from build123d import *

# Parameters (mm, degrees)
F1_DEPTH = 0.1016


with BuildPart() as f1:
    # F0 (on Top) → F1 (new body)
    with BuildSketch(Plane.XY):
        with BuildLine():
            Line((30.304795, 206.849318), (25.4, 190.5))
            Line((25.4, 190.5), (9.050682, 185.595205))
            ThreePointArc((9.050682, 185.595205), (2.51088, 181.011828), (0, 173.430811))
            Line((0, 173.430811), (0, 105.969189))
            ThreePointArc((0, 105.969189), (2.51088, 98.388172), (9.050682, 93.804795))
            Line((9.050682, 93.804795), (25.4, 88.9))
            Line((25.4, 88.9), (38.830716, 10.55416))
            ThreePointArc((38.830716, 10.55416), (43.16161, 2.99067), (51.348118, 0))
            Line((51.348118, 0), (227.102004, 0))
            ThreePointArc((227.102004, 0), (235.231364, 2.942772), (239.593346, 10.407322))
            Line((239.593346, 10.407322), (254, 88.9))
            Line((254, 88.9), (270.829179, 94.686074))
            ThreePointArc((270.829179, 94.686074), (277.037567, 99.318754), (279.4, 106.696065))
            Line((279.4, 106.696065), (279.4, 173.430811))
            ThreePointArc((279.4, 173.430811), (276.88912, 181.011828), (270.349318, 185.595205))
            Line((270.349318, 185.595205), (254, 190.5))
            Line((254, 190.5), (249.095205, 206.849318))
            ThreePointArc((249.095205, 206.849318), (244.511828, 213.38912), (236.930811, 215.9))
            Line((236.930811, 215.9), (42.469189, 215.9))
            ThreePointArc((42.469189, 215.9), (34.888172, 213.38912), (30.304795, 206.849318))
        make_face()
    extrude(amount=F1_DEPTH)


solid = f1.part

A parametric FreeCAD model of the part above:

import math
import FreeCAD as App
import Part
import Sketcher
Q = App.Units.Quantity

doc = App.newDocument("Part")
body = doc.addObject("PartDesign::Body", "Body")

sketch1 = doc.addObject("Sketcher::SketchObject", "Sketch")
body.addObject(sketch1)
sketch1.AttachmentSupport = (doc.XY_Plane, [""])
sketch1.MapMode = "FlatFace"
sketch1.addGeometry([
    Part.LineSegment(App.Vector(30.304795, 206.849318, 0), App.Vector(25.4, 190.5, 0)),
    Part.LineSegment(App.Vector(25.4, 190.5, 0), App.Vector(9.050682, 185.595205, 0)),
    Part.ArcOfCircle(Part.Circle(App.Vector(12.700003, 173.430809, 0), App.Vector(0, 0, 1), 12.700003), math.radians(106.699253), math.radians(179.999992)),
    Part.LineSegment(App.Vector(0, 173.430811, 0), App.Vector(0, 105.969189, 0)),
    Part.ArcOfCircle(Part.Circle(App.Vector(12.700003, 105.969191, 0), App.Vector(0, 0, 1), 12.700003), math.radians(-179.999992), math.radians(-106.699253)),
    Part.LineSegment(App.Vector(9.050682, 93.804795, 0), App.Vector(25.4, 88.9, 0)),
    Part.LineSegment(App.Vector(25.4, 88.9, 0), App.Vector(38.830716, 10.55416, 0)),
    Part.ArcOfCircle(Part.Circle(App.Vector(51.348117, 12.699998, 0), App.Vector(0, 0, 1), 12.699998), math.radians(-170.27243), math.radians(-89.999996)),
    Part.LineSegment(App.Vector(51.348118, 0, 0), App.Vector(227.102004, 0, 0)),
    Part.ArcOfCircle(Part.Circle(App.Vector(227.102003, 12.700001, 0), App.Vector(0, 0, 1), 12.700001), math.radians(-89.999997), math.radians(-10.400392)),
    Part.LineSegment(App.Vector(239.593346, 10.407322, 0), App.Vector(254, 88.9, 0)),
    Part.LineSegment(App.Vector(254, 88.9, 0), App.Vector(270.829179, 94.686074, 0)),
    Part.ArcOfCircle(Part.Circle(App.Vector(266.700001, 106.696064, 0), App.Vector(0, 0, 1), 12.699999), math.radians(-71.026419), math.radians(0.000005)),
    Part.LineSegment(App.Vector(279.4, 106.696065, 0), App.Vector(279.4, 173.430811, 0)),
    Part.ArcOfCircle(Part.Circle(App.Vector(266.699997, 173.430809, 0), App.Vector(0, 0, 1), 12.700003), math.radians(0.000008), math.radians(73.300747)),
    Part.LineSegment(App.Vector(270.349318, 185.595205, 0), App.Vector(254, 190.5, 0)),
    Part.LineSegment(App.Vector(254, 190.5, 0), App.Vector(249.095205, 206.849318, 0)),
    Part.ArcOfCircle(Part.Circle(App.Vector(236.930809, 203.199997, 0), App.Vector(0, 0, 1), 12.700003), math.radians(16.699253), math.radians(89.999992)),
    Part.LineSegment(App.Vector(236.930811, 215.9, 0), App.Vector(42.469189, 215.9, 0)),
    Part.ArcOfCircle(Part.Circle(App.Vector(42.469191, 203.199997, 0), App.Vector(0, 0, 1), 12.700003), math.radians(90.000008), math.radians(163.300747)),
], False)
sketch1.addConstraint([
    Sketcher.Constraint("Coincident", 0, 2, 1, 1),
    Sketcher.Constraint("Coincident", 1, 2, 2, 1),
    Sketcher.Constraint("Coincident", 2, 2, 3, 1),
    Sketcher.Constraint("Coincident", 3, 2, 4, 1),
    Sketcher.Constraint("Coincident", 4, 2, 5, 1),
    Sketcher.Constraint("Coincident", 5, 2, 6, 1),
    Sketcher.Constraint("Coincident", 6, 2, 7, 1),
    Sketcher.Constraint("Coincident", 7, 2, 8, 1),
    Sketcher.Constraint("Coincident", 8, 2, 9, 1),
    Sketcher.Constraint("Coincident", 9, 2, 10, 1),
    Sketcher.Constraint("Coincident", 10, 2, 11, 1),
    Sketcher.Constraint("Coincident", 11, 2, 12, 1),
    Sketcher.Constraint("Coincident", 12, 2, 13, 1),
    Sketcher.Constraint("Coincident", 13, 2, 14, 1),
    Sketcher.Constraint("Coincident", 14, 2, 15, 1),
    Sketcher.Constraint("Coincident", 15, 2, 16, 1),
    Sketcher.Constraint("Coincident", 16, 2, 17, 1),
    Sketcher.Constraint("Coincident", 17, 2, 18, 1),
    Sketcher.Constraint("Coincident", 18, 2, 19, 1),
    Sketcher.Constraint("Coincident", 19, 2, 0, 1),
    Sketcher.Constraint("Vertical", 3),
    Sketcher.Constraint("Horizontal", 8),
    Sketcher.Constraint("Vertical", 13),
    Sketcher.Constraint("Horizontal", 18),
    Sketcher.Constraint("PointOnObject", 2, 2, -2),
    Sketcher.Constraint("PointOnObject", 7, 2, -1),
    Sketcher.Constraint("Radius", 2, Q("0.5000001 in")),
    Sketcher.Constraint("Radius", 4, Q("0.5000001 in")),
    Sketcher.Constraint("Radius", 7, Q("0.4999999 in")),
    Sketcher.Constraint("Radius", 9, Q("0.5 in")),
    Sketcher.Constraint("Radius", 12, Q("0.5 in")),
    Sketcher.Constraint("Radius", 14, Q("0.5000001 in")),
    Sketcher.Constraint("Radius", 17, Q("0.5000001 in")),
    Sketcher.Constraint("Radius", 19, Q("0.5000001 in")),
    Sketcher.Constraint("DistanceY", -1, 1, 17, 3, Q("7.9999999 in")),
    Sketcher.Constraint("DistanceX", -1, 1, 0, 2, Q("1 in")),
    Sketcher.Constraint("DistanceX", -1, 1, 5, 2, Q("1 in")),
    Sketcher.Constraint("DistanceX", -1, 1, 10, 2, Q("10 in")),
    Sketcher.Constraint("DistanceX", -1, 1, 12, 2, Q("11 in")),
    Sketcher.Constraint("DistanceX", -1, 1, 15, 2, Q("10 in")),
    Sketcher.Constraint("DistanceY", 7, 3, 0, 2, Q("7.0000001 in")),
    Sketcher.Constraint("DistanceY", 7, 3, 5, 2, Q("3.0000001 in")),
    Sketcher.Constraint("DistanceY", 9, 3, 10, 2, Q("3 in")),
    Sketcher.Constraint("DistanceY", 15, 2, 17, 2, Q("1 in")),
    Sketcher.Constraint("DistanceX", 18, 2, 18, 1, 194.461622),
    Sketcher.Constraint("DistanceX", 4, 3, 9, 3, 214.402001),
    Sketcher.Constraint("DistanceX", 6, 2, 7, 3, 12.517401),
    Sketcher.Constraint("DistanceX", 6, 2, 7, 2, 12.517402),
    Sketcher.Constraint("Distance", 0, 17.069189),
    Sketcher.Constraint("Distance", 1, 17.069189),
    Sketcher.Constraint("Distance", 5, 17.069189),
    Sketcher.Constraint("Distance", 6, 79.488708),
    Sketcher.Constraint("Distance", 15, 17.069189),
    Sketcher.Constraint("Distance", 16, 17.069189),
    Sketcher.Constraint("DistanceX", 8, 1, 8, 2, 175.753886),
    Sketcher.Constraint("DistanceY", 3, 2, 3, 1, 67.461622),
    Sketcher.Constraint("DistanceY", 13, 1, 13, 2, 66.734746),
    Sketcher.Constraint("DistanceY", -1, 1, 2, 3, 173.430809),
    Sketcher.Constraint("DistanceY", -1, 1, 4, 3, 105.969191),
    Sketcher.Constraint("DistanceY", -1, 1, 14, 3, 173.430809),
    Sketcher.Constraint("DistanceX", -1, 1, 17, 3, 236.930809),
    Sketcher.Constraint("DistanceX", -1, 1, 19, 3, 42.469191),
    Sketcher.Constraint("DistanceY", -1, 1, 2, 2, 173.430811),
    Sketcher.Constraint("DistanceX", -1, 1, 11, 2, 270.829179),
    Sketcher.Constraint("DistanceY", -1, 1, 13, 2, 173.430811),
    Sketcher.Constraint("DistanceX", -1, 1, 17, 2, 236.930811),
    Sketcher.Constraint("DistanceY", 9, 2, 9, 3, 2.292679),
    Sketcher.Constraint("DistanceY", 9, 2, 12, 3, 96.288742),
])
pad1 = doc.addObject("PartDesign::Pad", "Pad")
body.addObject(pad1)
pad1.Profile = sketch1
pad1.Length = Q("0.004 in")

doc.recompute()
